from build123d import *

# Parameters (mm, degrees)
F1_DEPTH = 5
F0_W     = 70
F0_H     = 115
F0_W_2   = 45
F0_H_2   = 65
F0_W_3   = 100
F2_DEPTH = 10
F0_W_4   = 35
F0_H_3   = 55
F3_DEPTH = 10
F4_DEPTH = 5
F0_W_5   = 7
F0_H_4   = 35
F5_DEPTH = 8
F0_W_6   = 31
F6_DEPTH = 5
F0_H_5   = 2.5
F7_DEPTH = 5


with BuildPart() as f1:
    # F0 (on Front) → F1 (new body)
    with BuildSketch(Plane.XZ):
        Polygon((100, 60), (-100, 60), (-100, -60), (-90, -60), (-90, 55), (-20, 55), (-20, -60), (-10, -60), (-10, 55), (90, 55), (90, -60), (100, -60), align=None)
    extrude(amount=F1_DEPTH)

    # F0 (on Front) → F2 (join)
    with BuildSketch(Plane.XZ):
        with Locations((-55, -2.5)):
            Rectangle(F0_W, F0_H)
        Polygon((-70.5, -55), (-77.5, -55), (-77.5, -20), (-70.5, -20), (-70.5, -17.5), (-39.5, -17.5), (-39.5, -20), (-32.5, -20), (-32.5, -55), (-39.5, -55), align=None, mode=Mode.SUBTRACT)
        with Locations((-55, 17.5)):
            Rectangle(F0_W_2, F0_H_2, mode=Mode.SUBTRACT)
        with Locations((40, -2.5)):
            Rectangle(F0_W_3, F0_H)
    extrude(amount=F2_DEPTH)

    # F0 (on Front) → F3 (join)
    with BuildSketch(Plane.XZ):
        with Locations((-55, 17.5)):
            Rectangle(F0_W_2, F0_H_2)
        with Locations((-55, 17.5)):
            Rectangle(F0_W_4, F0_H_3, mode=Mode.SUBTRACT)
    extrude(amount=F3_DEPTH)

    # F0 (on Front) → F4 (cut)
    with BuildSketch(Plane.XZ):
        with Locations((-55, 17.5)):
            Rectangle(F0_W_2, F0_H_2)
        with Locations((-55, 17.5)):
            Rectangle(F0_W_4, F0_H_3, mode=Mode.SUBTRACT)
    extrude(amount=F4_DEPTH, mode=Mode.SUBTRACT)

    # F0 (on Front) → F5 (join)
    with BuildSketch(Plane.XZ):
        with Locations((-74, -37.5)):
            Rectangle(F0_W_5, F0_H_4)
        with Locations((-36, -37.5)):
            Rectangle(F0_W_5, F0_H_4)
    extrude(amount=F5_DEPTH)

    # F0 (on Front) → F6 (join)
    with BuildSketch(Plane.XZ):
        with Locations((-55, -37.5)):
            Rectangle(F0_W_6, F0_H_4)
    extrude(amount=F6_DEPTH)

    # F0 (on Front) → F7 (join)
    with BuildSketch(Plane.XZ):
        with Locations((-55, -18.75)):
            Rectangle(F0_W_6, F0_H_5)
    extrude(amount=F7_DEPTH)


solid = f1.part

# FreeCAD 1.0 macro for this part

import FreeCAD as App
import Part
import Sketcher

doc = App.newDocument("Part")
body = doc.addObject("PartDesign::Body", "Body")

# Sketch on XZ plane
sketch1 = doc.addObject("Sketcher::SketchObject", "Sketch")
body.addObject(sketch1)
sketch1.AttachmentSupport = (doc.XZ_Plane, [""])
sketch1.MapMode = "FlatFace"
sketch1.addGeometry([
    Part.LineSegment(App.Vector(100, 60, 0), App.Vector(-100, 60, 0)),  # 0
    Part.LineSegment(App.Vector(-100, 60, 0), App.Vector(-100, -60, 0)),  # 1
    Part.LineSegment(App.Vector(-100, -60, 0), App.Vector(-90, -60, 0)),  # 2
    Part.LineSegment(App.Vector(-90, -60, 0), App.Vector(-90, 55, 0)),  # 3
    Part.LineSegment(App.Vector(-90, 55, 0), App.Vector(-20, 55, 0)),  # 4
    Part.LineSegment(App.Vector(-20, 55, 0), App.Vector(-20, -60, 0)),  # 5
    Part.LineSegment(App.Vector(-20, -60, 0), App.Vector(-10, -60, 0)),  # 6
    Part.LineSegment(App.Vector(-10, -60, 0), App.Vector(-10, 55, 0)),  # 7
    Part.LineSegment(App.Vector(-10, 55, 0), App.Vector(90, 55, 0)),  # 8
    Part.LineSegment(App.Vector(90, 55, 0), App.Vector(90, -60, 0)),  # 9
    Part.LineSegment(App.Vector(90, -60, 0), App.Vector(100, -60, 0)),  # 10
    Part.LineSegment(App.Vector(100, -60, 0), App.Vector(100, 60, 0)),  # 11
], False)
sketch1.addConstraint([
    Sketcher.Constraint("Coincident", 0, 2, 1, 1),
    Sketcher.Constraint("Coincident", 1, 2, 2, 1),
    Sketcher.Constraint("Coincident", 2, 2, 3, 1),
    Sketcher.Constraint("Coincident", 3, 2, 4, 1),
    Sketcher.Constraint("Coincident", 4, 2, 5, 1),
    Sketcher.Constraint("Coincident", 5, 2, 6, 1),
    Sketcher.Constraint("Coincident", 6, 2, 7, 1),
    Sketcher.Constraint("Coincident", 7, 2, 8, 1),
    Sketcher.Constraint("Coincident", 8, 2, 9, 1),
    Sketcher.Constraint("Coincident", 9, 2, 10, 1),
    Sketcher.Constraint("Coincident", 10, 2, 11, 1),
    Sketcher.Constraint("Coincident", 11, 2, 0, 1),
    Sketcher.Constraint("Horizontal", 0),
    Sketcher.Constraint("Vertical", 1),
    Sketcher.Constraint("Horizontal", 2),
    Sketcher.Constraint("Vertical", 3),
    Sketcher.Constraint("Horizontal", 4),
    Sketcher.Constraint("Vertical", 5),
    Sketcher.Constraint("Horizontal", 6),
    Sketcher.Constraint("Vertical", 7),
    Sketcher.Constraint("Horizontal", 8),
    Sketcher.Constraint("Vertical", 9),
    Sketcher.Constraint("Horizontal", 10),
    Sketcher.Constraint("Vertical", 11),
    Sketcher.Constraint("Symmetric", 0, 2, 10, 2, -1, 1),
    Sketcher.Constraint("Symmetric", 3, 2, 8, 2, -2),
    Sketcher.Constraint("Horizontal", 2, 2, 5, 2),
    Sketcher.Constraint("Horizontal", 6, 2, 9, 2),
    Sketcher.Constraint("Equal", 2, 6),
    Sketcher.Constraint("DistanceX", 0, 2, 0, 1, 200.0),
    Sketcher.Constraint("DistanceX", 2, 1, 2, 2, 10.0),
    Sketcher.Constraint("DistanceX", 4, 1, 4, 2, 70.0),
    Sketcher.Constraint("DistanceY", 1, 2, 1, 1, 120.0),
    Sketcher.Constraint("DistanceY", 3, 1, 3, 2, 115.0),
])
pad1 = doc.addObject("PartDesign::Pad", "Pad")
body.addObject(pad1)
pad1.Profile = sketch1
pad1.Length = 5

# Sketch on XZ plane
sketch2 = doc.addObject("Sketcher::SketchObject", "Sketch001")
body.addObject(sketch2)
sketch2.AttachmentSupport = (doc.XZ_Plane, [""])
sketch2.MapMode = "FlatFace"
sketch2.addGeometry([
    Part.LineSegment(App.Vector(-90, 55, 0), App.Vector(-90, -60, 0)),  # 0
    Part.LineSegment(App.Vector(-90, -60, 0), App.Vector(-20, -60, 0)),  # 1
    Part.LineSegment(App.Vector(-20, -60, 0), App.Vector(-20, 55, 0)),  # 2
    Part.LineSegment(App.Vector(-20, 55, 0), App.Vector(-90, 55, 0)),  # 3
    Part.LineSegment(App.Vector(-32.5, -55, 0), App.Vector(-77.5, -55, 0)),  # 4
    Part.LineSegment(App.Vector(-77.5, -55, 0), App.Vector(-77.5, -20, 0)),  # 5
    Part.LineSegment(App.Vector(-77.5, -20, 0), App.Vector(-70.5, -20, 0)),  # 6
    Part.LineSegment(App.Vector(-70.5, -20, 0), App.Vector(-70.5, -17.5, 0)),  # 7
    Part.LineSegment(App.Vector(-70.5, -17.5, 0), App.Vector(-39.5, -17.5, 0)),  # 8
    Part.LineSegment(App.Vector(-39.5, -17.5, 0), App.Vector(-39.5, -20, 0)),  # 9
    Part.LineSegment(App.Vector(-39.5, -20, 0), App.Vector(-32.5, -20, 0)),  # 10
    Part.LineSegment(App.Vector(-32.5, -20, 0), App.Vector(-32.5, -55, 0)),  # 11
    Part.LineSegment(App.Vector(-32.5, -15, 0), App.Vector(-77.5, -15, 0)),  # 12
    Part.LineSegment(App.Vector(-77.5, -15, 0), App.Vector(-77.5, 50, 0)),  # 13
    Part.LineSegment(App.Vector(-77.5, 50, 0), App.Vector(-32.5, 50, 0)),  # 14
    Part.LineSegment(App.Vector(-32.5, 50, 0), App.Vector(-32.5, -15, 0)),  # 15
    Part.LineSegment(App.Vector(-10, 55, 0), App.Vector(-10, -60, 0)),  # 16
    Part.LineSegment(App.Vector(-10, -60, 0), App.Vector(90, -60, 0)),  # 17
    Part.LineSegment(App.Vector(90, -60, 0), App.Vector(90, 55, 0)),  # 18
    Part.LineSegment(App.Vector(90, 55, 0), App.Vector(-10, 55, 0)),  # 19
], False)
sketch2.addConstraint([
    Sketcher.Constraint("Coincident", 0, 2, 1, 1),
    Sketcher.Constraint("Coincident", 1, 2, 2, 1),
    Sketcher.Constraint("Coincident", 2, 2, 3, 1),
    Sketcher.Constraint("Coincident", 3, 2, 0, 1),
    Sketcher.Constraint("Coincident", 4, 2, 5, 1),
    Sketcher.Constraint("Coincident", 5, 2, 6, 1),
    Sketcher.Constraint("Coincident", 6, 2, 7, 1),
    Sketcher.Constraint("Coincident", 7, 2, 8, 1),
    Sketcher.Constraint("Coincident", 8, 2, 9, 1),
    Sketcher.Constraint("Coincident", 9, 2, 10, 1),
    Sketcher.Constraint("Coincident", 10, 2, 11, 1),
    Sketcher.Constraint("Coincident", 11, 2, 4, 1),
    Sketcher.Constraint("Coincident", 12, 2, 13, 1),
    Sketcher.Constraint("Coincident", 13, 2, 14, 1),
    Sketcher.Constraint("Coincident", 14, 2, 15, 1),
    Sketcher.Constraint("Coincident", 15, 2, 12, 1),
    Sketcher.Constraint("Coincident", 16, 2, 17, 1),
    Sketcher.Constraint("Coincident", 17, 2, 18, 1),
    Sketcher.Constraint("Coincident", 18, 2, 19, 1),
    Sketcher.Constraint("Coincident", 19, 2, 16, 1),
    Sketcher.Constraint("Vertical", 0),
    Sketcher.Constraint("Horizontal", 1),
    Sketcher.Constraint("Vertical", 2),
    Sketcher.Constraint("Horizontal", 3),
    Sketcher.Constraint("Horizontal", 4),
    Sketcher.Constraint("Vertical", 5),
    Sketcher.Constraint("Horizontal", 6),
    Sketcher.Constraint("Vertical", 7),
    Sketcher.Constraint("Horizontal", 8),
    Sketcher.Constraint("Vertical", 9),
    Sketcher.Constraint("Horizontal", 10),
    Sketcher.Constraint("Vertical", 11),
    Sketcher.Constraint("Horizontal", 12),
    Sketcher.Constraint("Vertical", 13),
    Sketcher.Constraint("Horizontal", 14),
    Sketcher.Constraint("Vertical", 15),
    Sketcher.Constraint("Vertical", 16),
    Sketcher.Constraint("Horizontal", 17),
    Sketcher.Constraint("Vertical", 18),
    Sketcher.Constraint("Horizontal", 19),
    Sketcher.Constraint("Symmetric", 0, 2, 17, 2, -2),
    Sketcher.Constraint("Horizontal", 6, 2, 9, 2),
    Sketcher.Constraint("Horizontal", 3, 2, 18, 2),
    Sketcher.Constraint("Vertical", 5, 2, 12, 2),
    Sketcher.Constraint("Vertical", 11, 2, 14, 2),
    Sketcher.Constraint("Equal", 6, 10),
    Sketcher.Constraint("DistanceX", 1, 1, 1, 2, 70.0),
    Sketcher.Constraint("DistanceX", 4, 2, 4, 1, 45.0),
    Sketcher.Constraint("DistanceX", 6, 1, 6, 2, 7.0),
    Sketcher.Constraint("DistanceX", 17, 1, 17, 2, 100.0),
    Sketcher.Constraint("DistanceY", 0, 2, 0, 1, 115.0),
    Sketcher.Constraint("DistanceY", 5, 1, 5, 2, 35.0),
    Sketcher.Constraint("DistanceY", 13, 1, 13, 2, 65.0),
    Sketcher.Constraint("DistanceY", 7, 1, 7, 2, 2.5),
    Sketcher.Constraint("DistanceX", 0, 2, -1, 1, 90.0),
    Sketcher.Constraint("DistanceY", 0, 2, -1, 1, 60.0),
    Sketcher.Constraint("DistanceY", 4, 2, -1, 1, 55.0),
    Sketcher.Constraint("DistanceY", 12, 2, -1, 1, 15.0),
    Sketcher.Constraint("DistanceX", 4, 2, -1, 1, 77.5),
])
pad2 = doc.addObject("PartDesign::Pad", "Pad001")
body.addObject(pad2)
pad2.Profile = sketch2
pad2.Length = 10

# Sketch on XZ plane
sketch3 = doc.addObject("Sketcher::SketchObject", "Sketch002")
body.addObject(sketch3)
sketch3.AttachmentSupport = (doc.XZ_Plane, [""])
sketch3.MapMode = "FlatFace"
sketch3.addGeometry([
    Part.LineSegment(App.Vector(-78, 50, 0), App.Vector(-78, -15, 0)),  # 0
    Part.LineSegment(App.Vector(-78, -15, 0), App.Vector(-32, -15, 0)),  # 1
    Part.LineSegment(App.Vector(-32, -15, 0), App.Vector(-32, 50, 0)),  # 2
    Part.LineSegment(App.Vector(-32, 50, 0), App.Vector(-78, 50, 0)),  # 3
    Part.LineSegment(App.Vector(-38, -10, 0), App.Vector(-72, -10, 0)),  # 4
    Part.LineSegment(App.Vector(-72, -10, 0), App.Vector(-72, 45, 0)),  # 5
    Part.LineSegment(App.Vector(-72, 45, 0), App.Vector(-38, 45, 0)),  # 6
    Part.LineSegment(App.Vector(-38, 45, 0), App.Vector(-38, -10, 0)),  # 7
], False)
sketch3.addConstraint([
    Sketcher.Constraint("Coincident", 0, 2, 1, 1),
    Sketcher.Constraint("Coincident", 1, 2, 2, 1),
    Sketcher.Constraint("Coincident", 2, 2, 3, 1),
    Sketcher.Constraint("Coincident", 3, 2, 0, 1),
    Sketcher.Constraint("Coincident", 4, 2, 5, 1),
    Sketcher.Constraint("Coincident", 5, 2, 6, 1),
    Sketcher.Constraint("Coincident", 6, 2, 7, 1),
    Sketcher.Constraint("Coincident", 7, 2, 4, 1),
    Sketcher.Constraint("Vertical", 0),
    Sketcher.Constraint("Horizontal", 1),
    Sketcher.Constraint("Vertical", 2),
    Sketcher.Constraint("Horizontal", 3),
    Sketcher.Constraint("Horizontal", 4),
    Sketcher.Constraint("Vertical", 5),
    Sketcher.Constraint("Horizontal", 6),
    Sketcher.Constraint("Vertical", 7),
    Sketcher.Constraint("DistanceX", 1, 1, 1, 2, 45.0),
    Sketcher.Constraint("DistanceX", 4, 2, 4, 1, 35.0),
    Sketcher.Constraint("DistanceY", 0, 2, 0, 1, 65.0),
    Sketcher.Constraint("DistanceY", 5, 1, 5, 2, 55.0),
    Sketcher.Constraint("DistanceY", 0, 2, -1, 1, 15.0),
    Sketcher.Constraint("DistanceY", 4, 2, -1, 1, 10.0),
    Sketcher.Constraint("DistanceX", 0, 2, 4, 2, 5.0),
    Sketcher.Constraint("DistanceX", 0, 2, -1, 1, 77.5),
])
pad3 = doc.addObject("PartDesign::Pad", "Pad002")
body.addObject(pad3)
pad3.Profile = sketch3
pad3.Length = 10

# Sketch on XZ plane
sketch4 = doc.addObject("Sketcher::SketchObject", "Sketch003")
body.addObject(sketch4)
sketch4.AttachmentSupport = (doc.XZ_Plane, [""])
sketch4.MapMode = "FlatFace"
sketch4.addGeometry([
    Part.LineSegment(App.Vector(-78, 50, 0), App.Vector(-78, -15, 0)),  # 0
    Part.LineSegment(App.Vector(-78, -15, 0), App.Vector(-32, -15, 0)),  # 1
    Part.LineSegment(App.Vector(-32, -15, 0), App.Vector(-32, 50, 0)),  # 2
    Part.LineSegment(App.Vector(-32, 50, 0), App.Vector(-78, 50, 0)),  # 3
    Part.LineSegment(App.Vector(-38, -10, 0), App.Vector(-72, -10, 0)),  # 4
    Part.LineSegment(App.Vector(-72, -10, 0), App.Vector(-72, 45, 0)),  # 5
    Part.LineSegment(App.Vector(-72, 45, 0), App.Vector(-38, 45, 0)),  # 6
    Part.LineSegment(App.Vector(-38, 45, 0), App.Vector(-38, -10, 0)),  # 7
], False)
sketch4.addConstraint([
    Sketcher.Constraint("Coincident", 0, 2, 1, 1),
    Sketcher.Constraint("Coincident", 1, 2, 2, 1),
    Sketcher.Constraint("Coincident", 2, 2, 3, 1),
    Sketcher.Constraint("Coincident", 3, 2, 0, 1),
    Sketcher.Constraint("Coincident", 4, 2, 5, 1),
    Sketcher.Constraint("Coincident", 5, 2, 6, 1),
    Sketcher.Constraint("Coincident", 6, 2, 7, 1),
    Sketcher.Constraint("Coincident", 7, 2, 4, 1),
    Sketcher.Constraint("Vertical", 0),
    Sketcher.Constraint("Horizontal", 1),
    Sketcher.Constraint("Vertical", 2),
    Sketcher.Constraint("Horizontal", 3),
    Sketcher.Constraint("Horizontal", 4),
    Sketcher.Constraint("Vertical", 5),
    Sketcher.Constraint("Horizontal", 6),
    Sketcher.Constraint("Vertical", 7),
    Sketcher.Constraint("DistanceX", 1, 1, 1, 2, 45.0),
    Sketcher.Constraint("DistanceX", 4, 2, 4, 1, 35.0),
    Sketcher.Constraint("DistanceY", 0, 2, 0, 1, 65.0),
    Sketcher.Constraint("DistanceY", 5, 1, 5, 2, 55.0),
    Sketcher.Constraint("DistanceY", 0, 2, -1, 1, 15.0),
    Sketcher.Constraint("DistanceY", 4, 2, -1, 1, 10.0),
    Sketcher.Constraint("DistanceX", 0, 2, 4, 2, 5.0),
    Sketcher.Constraint("DistanceX", 0, 2, -1, 1, 77.5),
])
pocket1 = doc.addObject("PartDesign::Pocket", "Pocket")
body.addObject(pocket1)
pocket1.Profile = sketch4
pocket1.Length = 5
pocket1.Reversed = True

# Sketch on XZ plane
sketch5 = doc.addObject("Sketcher::SketchObject", "Sketch004")
body.addObject(sketch5)
sketch5.AttachmentSupport = (doc.XZ_Plane, [""])
sketch5.MapMode = "FlatFace"
sketch5.addGeometry([
    Part.LineSegment(App.Vector(-78, -20, 0), App.Vector(-78, -55, 0)),  # 0
    Part.LineSegment(App.Vector(-78, -55, 0), App.Vector(-70, -55, 0)),  # 1
    Part.LineSegment(App.Vector(-70, -55, 0), App.Vector(-70, -20, 0)),  # 2
    Part.LineSegment(App.Vector(-70, -20, 0), App.Vector(-78, -20, 0)),  # 3
    Part.LineSegment(App.Vector(-40, -20, 0), App.Vector(-40, -55, 0)),  # 4
    Part.LineSegment(App.Vector(-40, -55, 0), App.Vector(-32, -55, 0)),  # 5
    Part.LineSegment(App.Vector(-32, -55, 0), App.Vector(-32, -20, 0)),  # 6
    Part.LineSegment(App.Vector(-32, -20, 0), App.Vector(-40, -20, 0)),  # 7
], False)
sketch5.addConstraint([
    Sketcher.Constraint("Coincident", 0, 2, 1, 1),
    Sketcher.Constraint("Coincident", 1, 2, 2, 1),
    Sketcher.Constraint("Coincident", 2, 2, 3, 1),
    Sketcher.Constraint("Coincident", 3, 2, 0, 1),
    Sketcher.Constraint("Coincident", 4, 2, 5, 1),
    Sketcher.Constraint("Coincident", 5, 2, 6, 1),
    Sketcher.Constraint("Coincident", 6, 2, 7, 1),
    Sketcher.Constraint("Coincident", 7, 2, 4, 1),
    Sketcher.Constraint("Vertical", 0),
    Sketcher.Constraint("Horizontal", 1),
    Sketcher.Constraint("Vertical", 2),
    Sketcher.Constraint("Horizontal", 3),
    Sketcher.Constraint("Vertical", 4),
    Sketcher.Constraint("Horizontal", 5),
    Sketcher.Constraint("Vertical", 6),
    Sketcher.Constraint("Horizontal", 7),
    Sketcher.Constraint("Horizontal", 1, 2, 4, 2),
    Sketcher.Constraint("Horizontal", 3, 2, 6, 2),
    Sketcher.Constraint("Equal", 3, 5),
    Sketcher.Constraint("DistanceX", 1, 1, 1, 2, 7.0),
    Sketcher.Constraint("DistanceY", 0, 2, 0, 1, 35.0),
    Sketcher.Constraint("DistanceY", 0, 2, -1, 1, 55.0),
    Sketcher.Constraint("DistanceX", 1, 2, 4, 2, 31.0),
    Sketcher.Constraint("DistanceX", 0, 2, -1, 1, 77.5),
])
pad4 = doc.addObject("PartDesign::Pad", "Pad003")
body.addObject(pad4)
pad4.Profile = sketch5
pad4.Length = 8

# Sketch on XZ plane
sketch6 = doc.addObject("Sketcher::SketchObject", "Sketch005")
body.addObject(sketch6)
sketch6.AttachmentSupport = (doc.XZ_Plane, [""])
sketch6.MapMode = "FlatFace"
sketch6.addGeometry([
    Part.LineSegment(App.Vector(-70, -20, 0), App.Vector(-70, -55, 0)),
    Part.LineSegment(App.Vector(-70, -55, 0), App.Vector(-40, -55, 0)),
    Part.LineSegment(App.Vector(-40, -55, 0), App.Vector(-40, -20, 0)),
    Part.LineSegment(App.Vector(-40, -20, 0), App.Vector(-70, -20, 0)),
], False)
sketch6.addConstraint([
    Sketcher.Constraint("Coincident", 0, 2, 1, 1),
    Sketcher.Constraint("Coincident", 1, 2, 2, 1),
    Sketcher.Constraint("Coincident", 2, 2, 3, 1),
    Sketcher.Constraint("Coincident", 3, 2, 0, 1),
    Sketcher.Constraint("Vertical", 0),
    Sketcher.Constraint("Horizontal", 1),
    Sketcher.Constraint("Vertical", 2),
    Sketcher.Constraint("Horizontal", 3),
    Sketcher.Constraint("DistanceX", 1, 1, 1, 2, 31.0),
    Sketcher.Constraint("DistanceY", 0, 2, 0, 1, 35.0),
    Sketcher.Constraint("DistanceY", 0, 2, -1, 1, 55.0),
    Sketcher.Constraint("DistanceX", 0, 2, -1, 1, 70.5),
])
pad5 = doc.addObject("PartDesign::Pad", "Pad004")
body.addObject(pad5)
pad5.Profile = sketch6
pad5.Length = 5

# Sketch on XZ plane
sketch7 = doc.addObject("Sketcher::SketchObject", "Sketch006")
body.addObject(sketch7)
sketch7.AttachmentSupport = (doc.XZ_Plane, [""])
sketch7.MapMode = "FlatFace"
sketch7.addGeometry([
    Part.LineSegment(App.Vector(-70.5, -17.5, 0), App.Vector(-70.5, -20, 0)),
    Part.LineSegment(App.Vector(-70.5, -20, 0), App.Vector(-39.5, -20, 0)),
    Part.LineSegment(App.Vector(-39.5, -20, 0), App.Vector(-39.5, -17.5, 0)),
    Part.LineSegment(App.Vector(-39.5, -17.5, 0), App.Vector(-70.5, -17.5, 0)),
], False)
sketch7.addConstraint([
    Sketcher.Constraint("Coincident", 0, 2, 1, 1),
    Sketcher.Constraint("Coincident", 1, 2, 2, 1),
    Sketcher.Constraint("Coincident", 2, 2, 3, 1),
    Sketcher.Constraint("Coincident", 3, 2, 0, 1),
    Sketcher.Constraint("Vertical", 0),
    Sketcher.Constraint("Horizontal", 1),
    Sketcher.Constraint("Vertical", 2),
    Sketcher.Constraint("Horizontal", 3),
    Sketcher.Constraint("DistanceX", 1, 1, 1, 2, 31.0),
    Sketcher.Constraint("DistanceY", 0, 2, 0, 1, 2.5),
    Sketcher.Constraint("DistanceY", 0, 2, -1, 1, 20.0),
    Sketcher.Constraint("DistanceX", 0, 2, -1, 1, 70.5),
])
pad6 = doc.addObject("PartDesign::Pad", "Pad005")
body.addObject(pad6)
pad6.Profile = sketch7
pad6.Length = 5

doc.recompute()
